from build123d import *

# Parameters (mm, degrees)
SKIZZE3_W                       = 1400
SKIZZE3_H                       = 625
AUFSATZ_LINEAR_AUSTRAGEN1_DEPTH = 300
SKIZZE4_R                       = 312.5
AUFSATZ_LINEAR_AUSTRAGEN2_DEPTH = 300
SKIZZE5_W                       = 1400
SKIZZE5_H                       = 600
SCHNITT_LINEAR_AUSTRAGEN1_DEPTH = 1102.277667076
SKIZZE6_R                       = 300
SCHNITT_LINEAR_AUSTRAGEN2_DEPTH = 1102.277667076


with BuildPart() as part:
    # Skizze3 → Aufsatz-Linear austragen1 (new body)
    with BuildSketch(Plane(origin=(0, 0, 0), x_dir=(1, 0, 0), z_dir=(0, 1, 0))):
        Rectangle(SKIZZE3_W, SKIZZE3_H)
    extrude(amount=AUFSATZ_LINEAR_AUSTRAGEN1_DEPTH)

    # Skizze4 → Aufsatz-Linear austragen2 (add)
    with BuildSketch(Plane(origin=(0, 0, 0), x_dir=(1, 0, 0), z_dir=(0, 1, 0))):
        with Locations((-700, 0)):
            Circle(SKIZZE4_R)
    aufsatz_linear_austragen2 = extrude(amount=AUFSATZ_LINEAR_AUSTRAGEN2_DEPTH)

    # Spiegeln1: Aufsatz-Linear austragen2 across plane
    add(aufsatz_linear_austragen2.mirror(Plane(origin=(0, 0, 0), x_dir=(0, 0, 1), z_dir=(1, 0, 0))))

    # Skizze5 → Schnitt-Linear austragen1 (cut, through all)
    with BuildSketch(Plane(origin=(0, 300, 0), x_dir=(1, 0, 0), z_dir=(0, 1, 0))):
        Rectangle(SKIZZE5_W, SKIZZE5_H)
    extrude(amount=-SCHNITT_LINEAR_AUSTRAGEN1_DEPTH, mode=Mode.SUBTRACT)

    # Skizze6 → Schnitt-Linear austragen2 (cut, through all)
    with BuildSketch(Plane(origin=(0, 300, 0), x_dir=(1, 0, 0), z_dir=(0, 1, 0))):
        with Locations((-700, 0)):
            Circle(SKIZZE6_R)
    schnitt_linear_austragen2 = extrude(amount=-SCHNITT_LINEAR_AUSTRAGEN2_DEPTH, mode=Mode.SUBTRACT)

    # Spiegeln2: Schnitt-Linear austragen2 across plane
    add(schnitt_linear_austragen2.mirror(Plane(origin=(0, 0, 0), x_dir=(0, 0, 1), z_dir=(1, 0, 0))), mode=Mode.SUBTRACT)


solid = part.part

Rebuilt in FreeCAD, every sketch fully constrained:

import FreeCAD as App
import Part
import Sketcher
Q = App.Units.Quantity


def add_polygon(sketch, points):
    """Adds a closed chain of lines whose ends are joined by coincident constraints."""
    first, n = sketch.GeometryCount, len(points)
    for a, b in zip(points, points[1:] + points[:1]):
        sketch.addGeometry(Part.LineSegment(App.Vector(*a, 0), App.Vector(*b, 0)), False)
    for i in range(n):
        sketch.addConstraint(Sketcher.Constraint("Coincident", first + i, 2, first + (i + 1) % n, 1))

doc = App.newDocument("Part")
params = doc.addObject("Spreadsheet::Sheet", "Params")
for row, (alias, value) in enumerate([
    ("sketch1_width", "1400 mm"),
    ("sketch1_height", "625 mm"),
    ("pad1_length", "300 mm"),
    ("sketch2_diameter", "625 mm"),
    ("pad2_length", "300 mm"),
    ("sketch3_width", "1400 mm"),
    ("sketch3_height", "600 mm"),
    ("sketch4_diameter", "600 mm"),
], start=1):
    params.set(f"A{row}", alias)
    params.set(f"B{row}", "=" + value)
    params.setAlias(f"B{row}", alias)

body = doc.addObject("PartDesign::Body", "Body")

# Sketch on XZ plane
sketch1 = body.newObject("Sketcher::SketchObject", "Sketch")
sketch1.AttachmentSupport = (doc.getObject("XZ_Plane"), [""])
sketch1.MapMode = "FlatFace"
add_polygon(sketch1, [(-700, -312), (-700, 312), (700, 312), (700, -312)])  # lines 0-3
sketch1.addConstraint([
    Sketcher.Constraint("Vertical", 0),
    Sketcher.Constraint("Horizontal", 1),
    Sketcher.Constraint("Vertical", 2),
    Sketcher.Constraint("Horizontal", 3),
    Sketcher.Constraint("Symmetric", 0, 2, 2, 2, -1, 1),
    Sketcher.Constraint("DistanceX", 1, 1, 1, 2, Q("1400 mm")),
    Sketcher.Constraint("DistanceY", 0, 1, 0, 2, Q("625 mm")),
])
sketch1.setExpression("Constraints[9]", "Params.sketch1_width")
sketch1.setExpression("Constraints[10]", "Params.sketch1_height")
pad1 = body.newObject("PartDesign::Pad", "Pad")
pad1.Profile = sketch1
pad1.setExpression("Length", "Params.pad1_length")
pad1.Reversed = True

# Sketch on XZ plane
sketch2 = body.newObject("Sketcher::SketchObject", "Sketch001")
sketch2.AttachmentSupport = (doc.getObject("XZ_Plane"), [""])
sketch2.MapMode = "FlatFace"
sketch2.addGeometry(Part.Circle(App.Vector(-700, 0, 0), App.Vector(0, 0, 1), 312), False)
sketch2.addConstraint([
    Sketcher.Constraint("PointOnObject", 0, 3, -1),
    Sketcher.Constraint("Diameter", 0, Q("625 mm")),
    Sketcher.Constraint("DistanceX", 0, 3, -1, 1, Q("700 mm")),
])
sketch2.setExpression("Constraints[1]", "Params.sketch2_diameter")
pad2 = body.newObject("PartDesign::Pad", "Pad001")
pad2.Profile = sketch2
pad2.setExpression("Length", "Params.pad2_length")
pad2.Reversed = True
doc.recompute()

mirrored = body.newObject("PartDesign::Mirrored", "Mirrored")
mirrored.Originals = [pad2]
mirrored.MirrorPlane = (doc.getObject("YZ_Plane"), [""])
body.Tip = mirrored

# Sketch on XZ plane
sketch3 = body.newObject("Sketcher::SketchObject", "Sketch002")
sketch3.AttachmentSupport = (doc.getObject("XZ_Plane"), [""])
sketch3.MapMode = "FlatFace"
sketch3.AttachmentOffset = App.Placement(App.Vector(0, 0, -300), App.Rotation())
add_polygon(sketch3, [(-700, -300), (-700, 300), (700, 300), (700, -300)])  # lines 0-3
sketch3.addConstraint([
    Sketcher.Constraint("Vertical", 0),
    Sketcher.Constraint("Horizontal", 1),
    Sketcher.Constraint("Vertical", 2),
    Sketcher.Constraint("Horizontal", 3),
    Sketcher.Constraint("Symmetric", 0, 2, 2, 2, -1, 1),
    Sketcher.Constraint("DistanceX", 1, 1, 1, 2, Q("1400 mm")),
    Sketcher.Constraint("DistanceY", 0, 1, 0, 2, Q("600 mm")),
])
sketch3.setExpression("Constraints[9]", "Params.sketch3_width")
sketch3.setExpression("Constraints[10]", "Params.sketch3_height")
pocket1 = body.newObject("PartDesign::Pocket", "Pocket")
pocket1.Profile = sketch3
pocket1.Type = "ThroughAll"
pocket1.Reversed = True

# Sketch on XZ plane
sketch4 = body.newObject("Sketcher::SketchObject", "Sketch003")
sketch4.AttachmentSupport = (doc.getObject("XZ_Plane"), [""])
sketch4.MapMode = "FlatFace"
sketch4.AttachmentOffset = App.Placement(App.Vector(0, 0, -300), App.Rotation())
sketch4.addGeometry(Part.Circle(App.Vector(-700, 0, 0), App.Vector(0, 0, 1), 300), False)
sketch4.addConstraint([
    Sketcher.Constraint("PointOnObject", 0, 3, -1),
    Sketcher.Constraint("Diameter", 0, Q("600 mm")),
    Sketcher.Constraint("DistanceX", 0, 3, -1, 1, Q("700 mm")),
])
sketch4.setExpression("Constraints[1]", "Params.sketch4_diameter")
pocket2 = body.newObject("PartDesign::Pocket", "Pocket001")
pocket2.Profile = sketch4
pocket2.Type = "ThroughAll"
pocket2.Reversed = True
doc.recompute()

mirrored2 = body.newObject("PartDesign::Mirrored", "Mirrored001")
mirrored2.Originals = [pocket2]
mirrored2.MirrorPlane = (doc.getObject("YZ_Plane"), [""])
body.Tip = mirrored2

doc.recompute()
